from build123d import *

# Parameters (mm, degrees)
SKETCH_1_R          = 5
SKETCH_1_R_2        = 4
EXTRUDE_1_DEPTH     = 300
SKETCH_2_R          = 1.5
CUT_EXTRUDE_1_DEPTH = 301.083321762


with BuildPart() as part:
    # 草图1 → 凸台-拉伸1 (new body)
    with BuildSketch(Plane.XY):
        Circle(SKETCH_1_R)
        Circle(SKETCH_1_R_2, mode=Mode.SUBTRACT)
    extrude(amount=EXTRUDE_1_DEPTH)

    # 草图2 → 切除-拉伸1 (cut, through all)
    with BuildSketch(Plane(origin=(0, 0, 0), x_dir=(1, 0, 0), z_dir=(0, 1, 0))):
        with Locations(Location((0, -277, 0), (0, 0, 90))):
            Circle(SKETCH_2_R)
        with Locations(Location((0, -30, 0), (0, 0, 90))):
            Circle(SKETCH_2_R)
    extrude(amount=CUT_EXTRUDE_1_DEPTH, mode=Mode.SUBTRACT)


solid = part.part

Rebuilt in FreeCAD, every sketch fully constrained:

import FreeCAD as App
import Part
import Sketcher

doc = App.newDocument("Part")
body = doc.addObject("PartDesign::Body", "Body")

# Sketch on XY plane
sketch1 = body.newObject("Sketcher::SketchObject", "Sketch")
sketch1.AttachmentSupport = (doc.getObject("XY_Plane"), [""])
sketch1.MapMode = "FlatFace"
sketch1.addGeometry(Part.Circle(App.Vector(0, 0, 0), App.Vector(0, 0, 1), 5), False)
sketch1.addGeometry(Part.Circle(App.Vector(0, 0, 0), App.Vector(0, 0, 1), 4), False)
sketch1.addConstraint(Sketcher.Constraint("Coincident", 0, 3, -1, 1))
sketch1.addConstraint(Sketcher.Constraint("Coincident", 1, 3, -1, 1))
sketch1.addConstraint(Sketcher.Constraint("Diameter", 0, 10.0))
sketch1.addConstraint(Sketcher.Constraint("Diameter", 1, 8.0))
pad1 = body.newObject("PartDesign::Pad", "Pad")
pad1.Profile = sketch1
pad1.Length = 300

# Sketch on XZ plane
sketch2 = body.newObject("Sketcher::SketchObject", "Sketch001")
sketch2.AttachmentSupport = (doc.getObject("XZ_Plane"), [""])
sketch2.MapMode = "FlatFace"
sketch2.addGeometry(Part.Circle(App.Vector(0, 277, 0), App.Vector(0, 0, 1), 1.5), False)
sketch2.addGeometry(Part.Circle(App.Vector(0, 30, 0), App.Vector(0, 0, 1), 1.5), False)
sketch2.addConstraint(Sketcher.Constraint("Equal", 0, 1))
sketch2.addConstraint(Sketcher.Constraint("PointOnObject", 0, 3, -2))
sketch2.addConstraint(Sketcher.Constraint("PointOnObject", 1, 3, -2))
sketch2.addConstraint(Sketcher.Constraint("Diameter", 0, 3.0))
sketch2.addConstraint(Sketcher.Constraint("DistanceY", -1, 1, 0, 3, 277.0))
sketch2.addConstraint(Sketcher.Constraint("DistanceY", -1, 1, 1, 3, 30.0))
pocket1 = body.newObject("PartDesign::Pocket", "Pocket")
pocket1.Profile = sketch2
pocket1.Type = "ThroughAll"

doc.recompute()
